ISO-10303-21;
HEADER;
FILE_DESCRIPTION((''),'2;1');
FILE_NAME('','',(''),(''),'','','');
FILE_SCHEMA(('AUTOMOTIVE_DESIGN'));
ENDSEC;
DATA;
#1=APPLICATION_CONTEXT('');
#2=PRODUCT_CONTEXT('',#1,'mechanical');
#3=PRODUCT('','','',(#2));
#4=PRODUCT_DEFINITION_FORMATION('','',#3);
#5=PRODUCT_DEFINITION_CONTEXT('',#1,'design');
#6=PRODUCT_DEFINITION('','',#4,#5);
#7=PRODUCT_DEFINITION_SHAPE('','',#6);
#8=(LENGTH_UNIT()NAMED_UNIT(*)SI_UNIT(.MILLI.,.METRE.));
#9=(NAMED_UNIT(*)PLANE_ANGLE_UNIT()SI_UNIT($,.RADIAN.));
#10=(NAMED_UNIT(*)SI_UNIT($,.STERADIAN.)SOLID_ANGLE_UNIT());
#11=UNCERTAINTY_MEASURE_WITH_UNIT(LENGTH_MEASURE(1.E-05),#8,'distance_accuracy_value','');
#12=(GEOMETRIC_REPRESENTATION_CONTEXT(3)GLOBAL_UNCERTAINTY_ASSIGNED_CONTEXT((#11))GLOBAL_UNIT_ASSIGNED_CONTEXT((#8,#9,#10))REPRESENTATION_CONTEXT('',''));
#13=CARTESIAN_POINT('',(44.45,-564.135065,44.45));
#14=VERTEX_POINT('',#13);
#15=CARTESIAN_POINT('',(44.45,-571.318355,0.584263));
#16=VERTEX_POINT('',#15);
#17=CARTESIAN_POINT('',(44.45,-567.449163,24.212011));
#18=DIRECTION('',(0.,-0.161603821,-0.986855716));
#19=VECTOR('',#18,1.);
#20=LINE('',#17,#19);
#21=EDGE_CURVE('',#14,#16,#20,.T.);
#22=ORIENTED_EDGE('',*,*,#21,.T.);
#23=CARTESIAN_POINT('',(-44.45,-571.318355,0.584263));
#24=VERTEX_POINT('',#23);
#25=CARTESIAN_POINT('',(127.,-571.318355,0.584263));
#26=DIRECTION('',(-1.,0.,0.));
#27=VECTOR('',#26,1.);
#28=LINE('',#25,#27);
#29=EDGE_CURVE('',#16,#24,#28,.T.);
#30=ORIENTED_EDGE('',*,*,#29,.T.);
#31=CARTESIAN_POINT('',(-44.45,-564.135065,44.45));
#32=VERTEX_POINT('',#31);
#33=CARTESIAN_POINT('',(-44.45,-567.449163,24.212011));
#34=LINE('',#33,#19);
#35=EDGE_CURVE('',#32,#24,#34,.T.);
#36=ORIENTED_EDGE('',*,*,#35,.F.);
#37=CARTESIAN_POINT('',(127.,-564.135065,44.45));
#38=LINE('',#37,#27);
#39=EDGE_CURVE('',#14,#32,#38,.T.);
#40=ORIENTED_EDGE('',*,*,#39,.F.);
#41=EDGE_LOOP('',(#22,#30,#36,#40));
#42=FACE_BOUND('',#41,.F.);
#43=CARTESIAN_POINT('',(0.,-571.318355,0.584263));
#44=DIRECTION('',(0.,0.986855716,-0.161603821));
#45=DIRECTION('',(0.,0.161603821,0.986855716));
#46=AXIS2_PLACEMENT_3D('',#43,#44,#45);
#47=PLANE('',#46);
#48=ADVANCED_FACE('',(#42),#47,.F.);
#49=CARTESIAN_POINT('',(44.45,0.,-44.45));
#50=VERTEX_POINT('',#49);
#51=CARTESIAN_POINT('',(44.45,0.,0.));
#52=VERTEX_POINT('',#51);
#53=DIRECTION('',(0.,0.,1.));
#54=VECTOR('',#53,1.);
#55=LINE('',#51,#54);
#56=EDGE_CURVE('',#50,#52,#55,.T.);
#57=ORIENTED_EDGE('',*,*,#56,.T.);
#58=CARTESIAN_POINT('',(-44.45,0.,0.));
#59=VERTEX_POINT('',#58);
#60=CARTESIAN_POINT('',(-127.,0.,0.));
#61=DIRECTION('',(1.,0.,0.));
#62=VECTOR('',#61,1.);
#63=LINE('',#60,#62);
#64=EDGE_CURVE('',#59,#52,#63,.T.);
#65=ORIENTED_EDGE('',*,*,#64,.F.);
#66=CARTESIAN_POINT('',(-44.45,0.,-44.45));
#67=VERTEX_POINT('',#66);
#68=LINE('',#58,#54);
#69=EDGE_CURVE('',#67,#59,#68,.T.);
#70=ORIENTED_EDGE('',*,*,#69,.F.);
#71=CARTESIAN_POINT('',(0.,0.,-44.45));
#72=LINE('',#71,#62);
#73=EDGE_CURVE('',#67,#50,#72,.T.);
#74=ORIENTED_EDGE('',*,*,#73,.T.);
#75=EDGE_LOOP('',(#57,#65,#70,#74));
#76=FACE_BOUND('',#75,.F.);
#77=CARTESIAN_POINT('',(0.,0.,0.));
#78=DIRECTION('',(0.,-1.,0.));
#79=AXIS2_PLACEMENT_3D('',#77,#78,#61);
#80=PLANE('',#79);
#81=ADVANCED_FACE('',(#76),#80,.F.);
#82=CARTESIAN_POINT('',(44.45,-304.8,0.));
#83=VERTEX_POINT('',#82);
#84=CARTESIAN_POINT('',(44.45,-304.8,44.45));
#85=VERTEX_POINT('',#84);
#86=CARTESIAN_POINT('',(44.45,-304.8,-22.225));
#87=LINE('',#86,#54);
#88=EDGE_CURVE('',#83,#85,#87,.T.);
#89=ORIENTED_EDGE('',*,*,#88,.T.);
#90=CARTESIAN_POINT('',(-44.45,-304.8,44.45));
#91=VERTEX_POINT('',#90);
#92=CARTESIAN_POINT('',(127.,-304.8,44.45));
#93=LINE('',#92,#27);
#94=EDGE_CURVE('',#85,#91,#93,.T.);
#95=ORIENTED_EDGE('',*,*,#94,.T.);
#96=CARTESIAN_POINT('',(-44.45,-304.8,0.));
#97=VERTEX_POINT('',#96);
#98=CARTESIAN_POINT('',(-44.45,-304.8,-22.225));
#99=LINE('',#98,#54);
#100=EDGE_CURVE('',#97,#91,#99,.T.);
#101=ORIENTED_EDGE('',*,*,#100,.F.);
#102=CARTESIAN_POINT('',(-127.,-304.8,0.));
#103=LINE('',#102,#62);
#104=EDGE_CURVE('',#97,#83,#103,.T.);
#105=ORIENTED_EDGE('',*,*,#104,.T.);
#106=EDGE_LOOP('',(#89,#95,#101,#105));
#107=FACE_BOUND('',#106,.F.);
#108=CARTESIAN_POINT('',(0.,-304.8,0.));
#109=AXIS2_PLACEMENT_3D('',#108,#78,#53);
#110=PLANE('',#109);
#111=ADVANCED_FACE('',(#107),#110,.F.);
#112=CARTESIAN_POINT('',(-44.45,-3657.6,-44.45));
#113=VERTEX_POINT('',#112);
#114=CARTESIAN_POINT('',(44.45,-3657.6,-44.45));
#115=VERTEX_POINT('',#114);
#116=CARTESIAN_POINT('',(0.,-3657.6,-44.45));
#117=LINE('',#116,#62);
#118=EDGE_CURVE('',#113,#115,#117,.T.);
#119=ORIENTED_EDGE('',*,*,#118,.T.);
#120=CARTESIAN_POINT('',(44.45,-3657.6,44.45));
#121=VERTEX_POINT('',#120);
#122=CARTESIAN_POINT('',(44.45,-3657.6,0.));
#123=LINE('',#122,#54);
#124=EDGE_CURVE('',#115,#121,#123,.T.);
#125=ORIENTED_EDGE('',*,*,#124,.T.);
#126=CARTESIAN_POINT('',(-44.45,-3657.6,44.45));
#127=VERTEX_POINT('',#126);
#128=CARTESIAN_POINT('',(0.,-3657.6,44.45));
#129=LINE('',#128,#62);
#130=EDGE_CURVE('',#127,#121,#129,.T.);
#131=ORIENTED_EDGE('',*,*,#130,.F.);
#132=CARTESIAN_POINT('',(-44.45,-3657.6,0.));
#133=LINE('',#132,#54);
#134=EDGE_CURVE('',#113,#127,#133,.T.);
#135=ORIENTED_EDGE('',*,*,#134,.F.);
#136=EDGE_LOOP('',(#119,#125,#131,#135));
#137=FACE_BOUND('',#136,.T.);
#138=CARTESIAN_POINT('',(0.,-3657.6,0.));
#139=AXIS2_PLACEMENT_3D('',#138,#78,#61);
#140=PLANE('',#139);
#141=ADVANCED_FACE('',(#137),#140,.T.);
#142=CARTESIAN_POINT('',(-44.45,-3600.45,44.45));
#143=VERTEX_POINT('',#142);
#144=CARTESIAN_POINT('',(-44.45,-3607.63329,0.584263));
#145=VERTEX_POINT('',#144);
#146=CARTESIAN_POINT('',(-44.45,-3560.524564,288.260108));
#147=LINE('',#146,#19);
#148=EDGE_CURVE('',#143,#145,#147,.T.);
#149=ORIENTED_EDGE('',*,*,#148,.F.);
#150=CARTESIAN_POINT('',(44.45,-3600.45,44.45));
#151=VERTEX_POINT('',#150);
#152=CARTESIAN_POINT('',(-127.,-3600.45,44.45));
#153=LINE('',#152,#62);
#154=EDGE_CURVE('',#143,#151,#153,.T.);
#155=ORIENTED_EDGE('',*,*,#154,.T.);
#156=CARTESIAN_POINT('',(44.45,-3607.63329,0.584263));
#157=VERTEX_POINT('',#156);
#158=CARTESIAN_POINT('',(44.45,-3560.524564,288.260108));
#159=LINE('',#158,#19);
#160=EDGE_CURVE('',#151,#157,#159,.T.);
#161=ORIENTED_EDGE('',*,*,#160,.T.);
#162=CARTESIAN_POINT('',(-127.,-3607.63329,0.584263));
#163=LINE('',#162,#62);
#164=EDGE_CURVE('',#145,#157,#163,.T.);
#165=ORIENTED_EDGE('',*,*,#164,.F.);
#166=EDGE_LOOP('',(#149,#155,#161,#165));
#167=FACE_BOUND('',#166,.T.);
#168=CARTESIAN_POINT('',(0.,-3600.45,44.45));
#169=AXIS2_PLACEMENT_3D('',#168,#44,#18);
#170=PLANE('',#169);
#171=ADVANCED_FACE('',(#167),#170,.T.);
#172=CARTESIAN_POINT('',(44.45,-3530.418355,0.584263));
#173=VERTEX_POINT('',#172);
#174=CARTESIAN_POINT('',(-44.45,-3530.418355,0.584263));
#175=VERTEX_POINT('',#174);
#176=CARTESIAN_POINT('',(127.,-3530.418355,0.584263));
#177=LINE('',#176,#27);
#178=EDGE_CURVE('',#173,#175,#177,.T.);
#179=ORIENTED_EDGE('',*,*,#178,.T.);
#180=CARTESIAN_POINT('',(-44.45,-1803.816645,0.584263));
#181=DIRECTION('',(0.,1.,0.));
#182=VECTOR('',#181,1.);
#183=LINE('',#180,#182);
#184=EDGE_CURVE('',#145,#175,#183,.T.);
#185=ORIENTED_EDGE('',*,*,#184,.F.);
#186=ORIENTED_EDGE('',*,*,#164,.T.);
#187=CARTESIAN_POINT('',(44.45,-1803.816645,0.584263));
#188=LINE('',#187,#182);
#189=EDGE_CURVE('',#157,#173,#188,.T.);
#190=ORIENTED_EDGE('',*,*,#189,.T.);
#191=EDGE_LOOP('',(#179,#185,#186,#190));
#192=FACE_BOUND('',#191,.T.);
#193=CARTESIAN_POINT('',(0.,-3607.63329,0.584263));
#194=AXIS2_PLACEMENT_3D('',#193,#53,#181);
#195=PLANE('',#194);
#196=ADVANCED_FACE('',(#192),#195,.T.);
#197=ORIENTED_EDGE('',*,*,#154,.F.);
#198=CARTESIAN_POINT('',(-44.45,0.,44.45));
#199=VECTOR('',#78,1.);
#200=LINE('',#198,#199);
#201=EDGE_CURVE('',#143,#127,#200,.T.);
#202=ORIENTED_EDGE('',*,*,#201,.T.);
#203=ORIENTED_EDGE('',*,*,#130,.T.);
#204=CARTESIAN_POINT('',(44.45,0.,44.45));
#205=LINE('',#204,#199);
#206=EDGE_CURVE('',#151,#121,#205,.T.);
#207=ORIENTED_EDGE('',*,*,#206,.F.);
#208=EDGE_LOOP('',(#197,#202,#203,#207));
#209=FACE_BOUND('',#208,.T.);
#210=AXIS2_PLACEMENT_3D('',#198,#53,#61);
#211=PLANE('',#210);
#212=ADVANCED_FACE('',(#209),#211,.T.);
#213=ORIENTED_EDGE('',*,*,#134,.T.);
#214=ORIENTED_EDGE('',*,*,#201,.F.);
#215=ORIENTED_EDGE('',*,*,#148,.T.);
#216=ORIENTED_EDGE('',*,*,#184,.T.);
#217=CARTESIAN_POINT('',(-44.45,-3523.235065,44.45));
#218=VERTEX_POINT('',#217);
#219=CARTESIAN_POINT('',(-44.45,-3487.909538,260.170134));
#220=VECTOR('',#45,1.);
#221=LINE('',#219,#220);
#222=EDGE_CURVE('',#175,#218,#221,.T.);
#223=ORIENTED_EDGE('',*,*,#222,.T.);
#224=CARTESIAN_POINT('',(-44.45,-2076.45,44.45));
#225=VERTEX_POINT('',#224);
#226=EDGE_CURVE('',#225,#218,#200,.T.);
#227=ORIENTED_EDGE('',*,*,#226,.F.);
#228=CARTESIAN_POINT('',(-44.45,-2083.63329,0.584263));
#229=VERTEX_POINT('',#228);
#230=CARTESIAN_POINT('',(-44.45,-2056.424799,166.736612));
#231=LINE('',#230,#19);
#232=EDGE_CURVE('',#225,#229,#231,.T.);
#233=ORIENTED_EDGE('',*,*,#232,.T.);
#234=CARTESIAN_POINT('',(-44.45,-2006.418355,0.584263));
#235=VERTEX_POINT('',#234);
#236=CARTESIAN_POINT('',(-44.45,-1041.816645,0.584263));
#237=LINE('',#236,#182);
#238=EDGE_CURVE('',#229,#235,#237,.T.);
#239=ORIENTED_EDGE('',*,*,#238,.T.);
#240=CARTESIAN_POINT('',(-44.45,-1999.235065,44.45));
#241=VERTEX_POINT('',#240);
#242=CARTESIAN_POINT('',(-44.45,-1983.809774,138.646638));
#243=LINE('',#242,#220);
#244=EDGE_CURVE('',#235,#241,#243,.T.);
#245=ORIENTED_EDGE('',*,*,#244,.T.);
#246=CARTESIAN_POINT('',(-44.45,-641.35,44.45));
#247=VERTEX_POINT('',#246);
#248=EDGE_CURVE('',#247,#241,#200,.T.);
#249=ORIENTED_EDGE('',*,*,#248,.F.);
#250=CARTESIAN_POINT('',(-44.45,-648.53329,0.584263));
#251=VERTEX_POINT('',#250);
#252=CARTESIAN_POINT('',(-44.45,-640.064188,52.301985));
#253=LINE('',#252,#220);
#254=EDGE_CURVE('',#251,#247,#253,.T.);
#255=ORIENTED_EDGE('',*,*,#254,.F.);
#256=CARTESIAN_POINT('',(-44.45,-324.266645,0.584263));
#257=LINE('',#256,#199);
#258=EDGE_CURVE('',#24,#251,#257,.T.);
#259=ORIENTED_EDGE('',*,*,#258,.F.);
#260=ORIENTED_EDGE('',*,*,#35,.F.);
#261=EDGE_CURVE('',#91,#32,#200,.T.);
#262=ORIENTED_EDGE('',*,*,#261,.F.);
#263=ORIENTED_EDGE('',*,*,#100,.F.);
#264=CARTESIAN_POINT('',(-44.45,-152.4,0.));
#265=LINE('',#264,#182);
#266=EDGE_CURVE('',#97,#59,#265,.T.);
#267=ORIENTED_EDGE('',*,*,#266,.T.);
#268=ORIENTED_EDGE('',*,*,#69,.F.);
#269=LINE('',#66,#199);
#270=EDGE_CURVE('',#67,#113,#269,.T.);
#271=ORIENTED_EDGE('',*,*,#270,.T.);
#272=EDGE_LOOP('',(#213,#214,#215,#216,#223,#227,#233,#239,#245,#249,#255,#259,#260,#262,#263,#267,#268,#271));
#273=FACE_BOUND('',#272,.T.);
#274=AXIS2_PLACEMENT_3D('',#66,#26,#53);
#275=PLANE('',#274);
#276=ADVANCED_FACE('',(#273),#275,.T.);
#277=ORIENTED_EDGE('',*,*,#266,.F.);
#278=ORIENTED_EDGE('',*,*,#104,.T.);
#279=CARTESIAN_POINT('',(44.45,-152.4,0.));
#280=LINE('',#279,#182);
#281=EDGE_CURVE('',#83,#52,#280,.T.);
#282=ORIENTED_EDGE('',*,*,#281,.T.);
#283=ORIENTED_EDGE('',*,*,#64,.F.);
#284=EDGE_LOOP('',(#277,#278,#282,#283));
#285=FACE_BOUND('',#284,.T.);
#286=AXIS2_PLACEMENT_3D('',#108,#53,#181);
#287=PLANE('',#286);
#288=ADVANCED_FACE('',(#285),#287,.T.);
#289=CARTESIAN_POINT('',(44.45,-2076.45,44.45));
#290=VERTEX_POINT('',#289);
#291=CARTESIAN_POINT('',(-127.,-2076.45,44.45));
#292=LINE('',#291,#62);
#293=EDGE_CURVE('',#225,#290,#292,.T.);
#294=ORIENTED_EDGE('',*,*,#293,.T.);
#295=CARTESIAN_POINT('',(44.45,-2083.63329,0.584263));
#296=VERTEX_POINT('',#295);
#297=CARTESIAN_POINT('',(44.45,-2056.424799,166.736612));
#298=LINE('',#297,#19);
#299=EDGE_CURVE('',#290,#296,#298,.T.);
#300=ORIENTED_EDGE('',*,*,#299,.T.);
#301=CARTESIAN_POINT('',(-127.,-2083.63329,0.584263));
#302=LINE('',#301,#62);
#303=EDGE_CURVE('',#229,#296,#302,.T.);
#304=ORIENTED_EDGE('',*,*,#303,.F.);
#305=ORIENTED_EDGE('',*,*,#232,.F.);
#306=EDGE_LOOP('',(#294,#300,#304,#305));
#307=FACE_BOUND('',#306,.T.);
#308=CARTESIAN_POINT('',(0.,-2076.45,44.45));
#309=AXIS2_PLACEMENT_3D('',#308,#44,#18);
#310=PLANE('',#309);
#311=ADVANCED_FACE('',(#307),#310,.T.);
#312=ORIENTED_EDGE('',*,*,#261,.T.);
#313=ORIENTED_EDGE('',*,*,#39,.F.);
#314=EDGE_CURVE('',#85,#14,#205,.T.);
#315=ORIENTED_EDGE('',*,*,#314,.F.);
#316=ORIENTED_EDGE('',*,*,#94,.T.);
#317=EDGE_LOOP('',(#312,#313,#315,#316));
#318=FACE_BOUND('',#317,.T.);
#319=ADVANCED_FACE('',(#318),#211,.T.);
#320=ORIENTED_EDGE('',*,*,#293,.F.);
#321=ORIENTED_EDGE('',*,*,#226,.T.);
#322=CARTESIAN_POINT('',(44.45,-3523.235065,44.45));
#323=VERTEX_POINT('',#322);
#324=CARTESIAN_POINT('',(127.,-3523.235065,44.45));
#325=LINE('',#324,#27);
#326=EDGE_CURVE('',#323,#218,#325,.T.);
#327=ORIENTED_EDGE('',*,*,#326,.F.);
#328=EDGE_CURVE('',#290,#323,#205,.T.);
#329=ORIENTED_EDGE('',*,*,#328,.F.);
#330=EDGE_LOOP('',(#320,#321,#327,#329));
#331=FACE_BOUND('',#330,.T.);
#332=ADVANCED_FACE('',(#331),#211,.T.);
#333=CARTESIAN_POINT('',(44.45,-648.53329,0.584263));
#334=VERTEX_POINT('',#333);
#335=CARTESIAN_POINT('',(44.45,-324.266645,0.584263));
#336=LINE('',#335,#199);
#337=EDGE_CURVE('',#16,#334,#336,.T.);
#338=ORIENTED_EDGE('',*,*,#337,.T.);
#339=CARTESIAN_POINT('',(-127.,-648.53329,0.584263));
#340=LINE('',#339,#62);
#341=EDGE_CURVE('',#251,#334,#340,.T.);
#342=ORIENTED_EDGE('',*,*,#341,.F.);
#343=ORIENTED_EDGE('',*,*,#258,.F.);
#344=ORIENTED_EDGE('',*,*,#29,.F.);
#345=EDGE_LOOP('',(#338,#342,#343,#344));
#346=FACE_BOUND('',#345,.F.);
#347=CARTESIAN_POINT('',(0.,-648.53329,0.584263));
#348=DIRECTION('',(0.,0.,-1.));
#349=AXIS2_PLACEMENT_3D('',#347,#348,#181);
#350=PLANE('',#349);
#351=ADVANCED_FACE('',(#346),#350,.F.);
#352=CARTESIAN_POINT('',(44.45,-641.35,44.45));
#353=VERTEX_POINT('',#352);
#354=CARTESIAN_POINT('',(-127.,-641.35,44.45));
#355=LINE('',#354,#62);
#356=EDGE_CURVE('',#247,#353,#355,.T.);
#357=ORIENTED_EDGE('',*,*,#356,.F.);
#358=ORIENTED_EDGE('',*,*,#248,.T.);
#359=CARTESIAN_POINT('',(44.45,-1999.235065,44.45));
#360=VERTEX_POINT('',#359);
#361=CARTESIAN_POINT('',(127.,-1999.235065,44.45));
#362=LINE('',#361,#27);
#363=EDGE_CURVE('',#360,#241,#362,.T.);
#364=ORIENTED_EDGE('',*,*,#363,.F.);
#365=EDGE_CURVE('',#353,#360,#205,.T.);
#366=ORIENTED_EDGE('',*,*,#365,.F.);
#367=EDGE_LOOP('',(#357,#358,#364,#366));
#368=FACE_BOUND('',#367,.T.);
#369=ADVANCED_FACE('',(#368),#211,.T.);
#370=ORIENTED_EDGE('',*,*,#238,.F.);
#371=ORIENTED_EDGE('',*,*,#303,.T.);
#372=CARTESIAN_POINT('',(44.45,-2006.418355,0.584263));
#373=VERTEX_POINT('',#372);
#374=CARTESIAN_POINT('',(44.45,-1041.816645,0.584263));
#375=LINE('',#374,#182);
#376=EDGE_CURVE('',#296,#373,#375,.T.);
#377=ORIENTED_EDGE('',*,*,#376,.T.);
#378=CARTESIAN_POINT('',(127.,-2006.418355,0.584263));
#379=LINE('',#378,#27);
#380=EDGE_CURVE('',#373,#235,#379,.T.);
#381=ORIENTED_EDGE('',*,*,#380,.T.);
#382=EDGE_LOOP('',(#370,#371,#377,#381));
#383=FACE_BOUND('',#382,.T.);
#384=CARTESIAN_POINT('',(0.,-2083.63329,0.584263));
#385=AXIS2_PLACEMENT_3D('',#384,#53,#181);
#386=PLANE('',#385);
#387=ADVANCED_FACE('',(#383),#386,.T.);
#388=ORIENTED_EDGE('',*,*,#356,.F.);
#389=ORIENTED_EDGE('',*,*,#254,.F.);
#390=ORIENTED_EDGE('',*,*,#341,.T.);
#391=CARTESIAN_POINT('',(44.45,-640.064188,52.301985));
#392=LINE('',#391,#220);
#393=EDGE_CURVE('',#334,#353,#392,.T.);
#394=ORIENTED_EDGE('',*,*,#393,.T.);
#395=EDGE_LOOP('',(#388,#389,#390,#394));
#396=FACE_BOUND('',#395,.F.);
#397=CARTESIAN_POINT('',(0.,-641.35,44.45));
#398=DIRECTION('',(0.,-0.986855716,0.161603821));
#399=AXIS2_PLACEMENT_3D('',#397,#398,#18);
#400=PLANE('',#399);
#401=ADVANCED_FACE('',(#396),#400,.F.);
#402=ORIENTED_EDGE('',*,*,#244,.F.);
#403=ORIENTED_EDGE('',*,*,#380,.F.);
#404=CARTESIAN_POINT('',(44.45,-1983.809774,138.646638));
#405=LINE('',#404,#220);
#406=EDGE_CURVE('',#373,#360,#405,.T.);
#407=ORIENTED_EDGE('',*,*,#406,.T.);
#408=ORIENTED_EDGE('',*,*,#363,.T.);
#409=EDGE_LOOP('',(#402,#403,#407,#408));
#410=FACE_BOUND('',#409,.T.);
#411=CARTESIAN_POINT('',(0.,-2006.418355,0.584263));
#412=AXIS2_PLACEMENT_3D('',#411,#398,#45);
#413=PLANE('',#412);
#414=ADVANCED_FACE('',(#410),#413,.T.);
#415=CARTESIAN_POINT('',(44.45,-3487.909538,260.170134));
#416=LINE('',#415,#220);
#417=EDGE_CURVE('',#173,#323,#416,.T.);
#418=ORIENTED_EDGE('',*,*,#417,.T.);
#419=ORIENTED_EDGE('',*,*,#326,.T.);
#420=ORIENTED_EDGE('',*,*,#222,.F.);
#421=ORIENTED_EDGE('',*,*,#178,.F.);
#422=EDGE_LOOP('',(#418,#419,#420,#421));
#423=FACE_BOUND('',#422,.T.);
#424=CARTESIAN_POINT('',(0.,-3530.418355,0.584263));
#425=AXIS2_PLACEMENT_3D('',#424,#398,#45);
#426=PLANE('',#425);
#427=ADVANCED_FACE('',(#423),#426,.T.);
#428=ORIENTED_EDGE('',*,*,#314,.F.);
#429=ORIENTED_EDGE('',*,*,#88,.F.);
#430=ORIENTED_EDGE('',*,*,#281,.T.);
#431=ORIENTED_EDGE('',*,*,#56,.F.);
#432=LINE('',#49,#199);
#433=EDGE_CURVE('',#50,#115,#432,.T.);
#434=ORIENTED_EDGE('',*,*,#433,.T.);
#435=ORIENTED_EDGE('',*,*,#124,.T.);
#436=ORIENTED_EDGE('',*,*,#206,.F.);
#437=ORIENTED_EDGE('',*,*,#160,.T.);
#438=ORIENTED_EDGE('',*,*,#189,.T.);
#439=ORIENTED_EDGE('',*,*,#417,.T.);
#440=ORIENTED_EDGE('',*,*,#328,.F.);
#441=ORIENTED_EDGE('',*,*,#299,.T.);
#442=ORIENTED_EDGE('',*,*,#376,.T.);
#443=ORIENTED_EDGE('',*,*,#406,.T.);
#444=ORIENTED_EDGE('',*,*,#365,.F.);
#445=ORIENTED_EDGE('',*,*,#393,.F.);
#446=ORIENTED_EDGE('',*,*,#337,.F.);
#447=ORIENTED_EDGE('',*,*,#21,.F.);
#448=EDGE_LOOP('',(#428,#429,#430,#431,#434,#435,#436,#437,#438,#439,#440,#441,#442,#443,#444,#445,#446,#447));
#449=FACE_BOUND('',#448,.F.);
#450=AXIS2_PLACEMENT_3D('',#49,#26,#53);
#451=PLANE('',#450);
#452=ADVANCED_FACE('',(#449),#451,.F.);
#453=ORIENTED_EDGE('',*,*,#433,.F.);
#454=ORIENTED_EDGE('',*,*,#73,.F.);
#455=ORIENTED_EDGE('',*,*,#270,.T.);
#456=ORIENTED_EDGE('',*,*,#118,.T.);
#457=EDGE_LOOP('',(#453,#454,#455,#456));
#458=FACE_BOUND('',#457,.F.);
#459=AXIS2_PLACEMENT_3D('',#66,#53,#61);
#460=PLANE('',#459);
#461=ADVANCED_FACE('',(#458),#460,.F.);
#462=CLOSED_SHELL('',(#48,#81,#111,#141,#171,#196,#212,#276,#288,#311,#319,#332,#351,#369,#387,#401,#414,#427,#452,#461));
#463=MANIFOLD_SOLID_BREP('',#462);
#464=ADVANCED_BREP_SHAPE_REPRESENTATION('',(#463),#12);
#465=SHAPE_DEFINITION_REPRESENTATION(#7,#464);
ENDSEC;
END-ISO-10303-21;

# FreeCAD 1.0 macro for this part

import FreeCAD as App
import Part
import Sketcher
Q = App.Units.Quantity


def add_polygon(sketch, points):
    """Adds a closed chain of lines whose ends are joined by coincident constraints."""
    first, n = sketch.GeometryCount, len(points)
    for a, b in zip(points, points[1:] + points[:1]):
        sketch.addGeometry(Part.LineSegment(App.Vector(*a, 0), App.Vector(*b, 0)), False)
    for i in range(n):
        sketch.addConstraint(Sketcher.Constraint("Coincident", first + i, 2, first + (i + 1) % n, 1))

doc = App.newDocument("Part")
params = doc.addObject("Spreadsheet::Sheet", "Params")
for row, (alias, value) in enumerate([
    ("sketch1_width", "3.5 in"),
    ("pad1_length", "144 in"),
    ("sketch2_width", "12 in"),
    ("sketch2_height", "1.75 in"),
    ("sketch2_length", "1.75 in"),
    ("pocket1_length", "10 in"),
], start=1):
    params.set(f"A{row}", alias)
    params.set(f"B{row}", "=" + value)
    params.setAlias(f"B{row}", alias)

body = doc.addObject("PartDesign::Body", "Body")

sketch1 = body.newObject("Sketcher::SketchObject", "Sketch")
sketch1.AttachmentSupport = (doc.getObject("XZ_Plane"), [""])
sketch1.MapMode = "FlatFace"
add_polygon(sketch1, [(-44, 44), (-44, -44), (44, -44), (44, 44)])
sketch1.addConstraint(Sketcher.Constraint("Vertical", 0))
sketch1.addConstraint(Sketcher.Constraint("Horizontal", 1))
sketch1.addConstraint(Sketcher.Constraint("Vertical", 2))
sketch1.addConstraint(Sketcher.Constraint("Horizontal", 3))
sketch1.addConstraint(Sketcher.Constraint("Symmetric", 0, 2, 2, 2, -1, 1))
sketch1.addConstraint(Sketcher.Constraint("Equal", 3, 0))
sketch1.addConstraint(Sketcher.Constraint("DistanceX", 1, 1, 1, 2, Q("3.5 in")))
sketch1.setExpression("Constraints[10]", "Params.sketch1_width")
pad1 = body.newObject("PartDesign::Pad", "Pad")
pad1.Profile = sketch1
pad1.setExpression("Length", "Params.pad1_length")

sketch2 = body.newObject("Sketcher::SketchObject", "Sketch001")
sketch2.AttachmentSupport = (doc.getObject("YZ_Plane"), [""])
sketch2.MapMode = "FlatFace"
add_polygon(sketch2, [(-305, 44), (-305, 0), (0, 0), (0, 44)])
add_polygon(sketch2, [(-3523, 44), (-3600, 44), (-3608, 1), (-3530, 1)])
add_polygon(sketch2, [(-1999, 44), (-2076, 44), (-2084, 1), (-2006, 1)])
add_polygon(sketch2, [(-564, 44), (-641, 44), (-649, 1), (-571, 1)])
sketch2.addConstraint(Sketcher.Constraint("Vertical", 0))
sketch2.addConstraint(Sketcher.Constraint("Horizontal", 1))
sketch2.addConstraint(Sketcher.Constraint("Vertical", 2))
sketch2.addConstraint(Sketcher.Constraint("Horizontal", 3))
sketch2.addConstraint(Sketcher.Constraint("Horizontal", 4))
sketch2.addConstraint(Sketcher.Constraint("Horizontal", 6))
sketch2.addConstraint(Sketcher.Constraint("Horizontal", 8))
sketch2.addConstraint(Sketcher.Constraint("Horizontal", 10))
sketch2.addConstraint(Sketcher.Constraint("Horizontal", 12))
sketch2.addConstraint(Sketcher.Constraint("Horizontal", 14))
sketch2.addConstraint(Sketcher.Constraint("Coincident", 1, 2, -1, 1))
sketch2.addConstraint(Sketcher.Constraint("Parallel", 5, 7))
sketch2.addConstraint(Sketcher.Constraint("Parallel", 7, 9))
sketch2.addConstraint(Sketcher.Constraint("Parallel", 9, 11))
sketch2.addConstraint(Sketcher.Constraint("Parallel", 11, 13))
sketch2.addConstraint(Sketcher.Constraint("Parallel", 13, 15))
sketch2.addConstraint(Sketcher.Constraint("Horizontal", 3, 2, 4, 2))
sketch2.addConstraint(Sketcher.Constraint("Horizontal", 7, 2, 8, 2))
sketch2.addConstraint(Sketcher.Constraint("Horizontal", 6, 2, 9, 2))
sketch2.addConstraint(Sketcher.Constraint("Horizontal", 11, 2, 12, 2))
sketch2.addConstraint(Sketcher.Constraint("Horizontal", 10, 2, 13, 2))
sketch2.addConstraint(Sketcher.Constraint("Equal", 6, 8))
sketch2.addConstraint(Sketcher.Constraint("Equal", 10, 12))
sketch2.addConstraint(Sketcher.Constraint("DistanceX", 1, 1, 1, 2, Q("12 in")))
sketch2.addConstraint(Sketcher.Constraint("DistanceX", 4, 2, 8, 2, Q("60 in")))
sketch2.addConstraint(Sketcher.Constraint("DistanceY", 0, 2, 0, 1, Q("1.75 in")))
sketch2.addConstraint(Sketcher.Constraint("Angle", 5, Q("-99.3 deg")))
sketch2.addConstraint(Sketcher.Constraint("Distance", 5, Q("1.75 in")))
sketch2.addConstraint(Sketcher.Constraint("DistanceX", 4, 2, -1, 1, Q("141.75 in")))
sketch2.addConstraint(Sketcher.Constraint("DistanceX", 12, 2, -1, 1, Q("25.25 in")))
sketch2.addConstraint(Sketcher.Constraint("DistanceX", 4, 2, 4, 1, Q("77.214935 mm")))
sketch2.setExpression("Constraints[39]", "Params.sketch2_width")
sketch2.setExpression("Constraints[41]", "Params.sketch2_height")
sketch2.setExpression("Constraints[43]", "Params.sketch2_length")
pocket1 = body.newObject("PartDesign::Pocket", "Pocket")
pocket1.Profile = sketch2
pocket1.setExpression("Length", "Params.pocket1_length")
pocket1.Midplane = True

doc.recompute()
